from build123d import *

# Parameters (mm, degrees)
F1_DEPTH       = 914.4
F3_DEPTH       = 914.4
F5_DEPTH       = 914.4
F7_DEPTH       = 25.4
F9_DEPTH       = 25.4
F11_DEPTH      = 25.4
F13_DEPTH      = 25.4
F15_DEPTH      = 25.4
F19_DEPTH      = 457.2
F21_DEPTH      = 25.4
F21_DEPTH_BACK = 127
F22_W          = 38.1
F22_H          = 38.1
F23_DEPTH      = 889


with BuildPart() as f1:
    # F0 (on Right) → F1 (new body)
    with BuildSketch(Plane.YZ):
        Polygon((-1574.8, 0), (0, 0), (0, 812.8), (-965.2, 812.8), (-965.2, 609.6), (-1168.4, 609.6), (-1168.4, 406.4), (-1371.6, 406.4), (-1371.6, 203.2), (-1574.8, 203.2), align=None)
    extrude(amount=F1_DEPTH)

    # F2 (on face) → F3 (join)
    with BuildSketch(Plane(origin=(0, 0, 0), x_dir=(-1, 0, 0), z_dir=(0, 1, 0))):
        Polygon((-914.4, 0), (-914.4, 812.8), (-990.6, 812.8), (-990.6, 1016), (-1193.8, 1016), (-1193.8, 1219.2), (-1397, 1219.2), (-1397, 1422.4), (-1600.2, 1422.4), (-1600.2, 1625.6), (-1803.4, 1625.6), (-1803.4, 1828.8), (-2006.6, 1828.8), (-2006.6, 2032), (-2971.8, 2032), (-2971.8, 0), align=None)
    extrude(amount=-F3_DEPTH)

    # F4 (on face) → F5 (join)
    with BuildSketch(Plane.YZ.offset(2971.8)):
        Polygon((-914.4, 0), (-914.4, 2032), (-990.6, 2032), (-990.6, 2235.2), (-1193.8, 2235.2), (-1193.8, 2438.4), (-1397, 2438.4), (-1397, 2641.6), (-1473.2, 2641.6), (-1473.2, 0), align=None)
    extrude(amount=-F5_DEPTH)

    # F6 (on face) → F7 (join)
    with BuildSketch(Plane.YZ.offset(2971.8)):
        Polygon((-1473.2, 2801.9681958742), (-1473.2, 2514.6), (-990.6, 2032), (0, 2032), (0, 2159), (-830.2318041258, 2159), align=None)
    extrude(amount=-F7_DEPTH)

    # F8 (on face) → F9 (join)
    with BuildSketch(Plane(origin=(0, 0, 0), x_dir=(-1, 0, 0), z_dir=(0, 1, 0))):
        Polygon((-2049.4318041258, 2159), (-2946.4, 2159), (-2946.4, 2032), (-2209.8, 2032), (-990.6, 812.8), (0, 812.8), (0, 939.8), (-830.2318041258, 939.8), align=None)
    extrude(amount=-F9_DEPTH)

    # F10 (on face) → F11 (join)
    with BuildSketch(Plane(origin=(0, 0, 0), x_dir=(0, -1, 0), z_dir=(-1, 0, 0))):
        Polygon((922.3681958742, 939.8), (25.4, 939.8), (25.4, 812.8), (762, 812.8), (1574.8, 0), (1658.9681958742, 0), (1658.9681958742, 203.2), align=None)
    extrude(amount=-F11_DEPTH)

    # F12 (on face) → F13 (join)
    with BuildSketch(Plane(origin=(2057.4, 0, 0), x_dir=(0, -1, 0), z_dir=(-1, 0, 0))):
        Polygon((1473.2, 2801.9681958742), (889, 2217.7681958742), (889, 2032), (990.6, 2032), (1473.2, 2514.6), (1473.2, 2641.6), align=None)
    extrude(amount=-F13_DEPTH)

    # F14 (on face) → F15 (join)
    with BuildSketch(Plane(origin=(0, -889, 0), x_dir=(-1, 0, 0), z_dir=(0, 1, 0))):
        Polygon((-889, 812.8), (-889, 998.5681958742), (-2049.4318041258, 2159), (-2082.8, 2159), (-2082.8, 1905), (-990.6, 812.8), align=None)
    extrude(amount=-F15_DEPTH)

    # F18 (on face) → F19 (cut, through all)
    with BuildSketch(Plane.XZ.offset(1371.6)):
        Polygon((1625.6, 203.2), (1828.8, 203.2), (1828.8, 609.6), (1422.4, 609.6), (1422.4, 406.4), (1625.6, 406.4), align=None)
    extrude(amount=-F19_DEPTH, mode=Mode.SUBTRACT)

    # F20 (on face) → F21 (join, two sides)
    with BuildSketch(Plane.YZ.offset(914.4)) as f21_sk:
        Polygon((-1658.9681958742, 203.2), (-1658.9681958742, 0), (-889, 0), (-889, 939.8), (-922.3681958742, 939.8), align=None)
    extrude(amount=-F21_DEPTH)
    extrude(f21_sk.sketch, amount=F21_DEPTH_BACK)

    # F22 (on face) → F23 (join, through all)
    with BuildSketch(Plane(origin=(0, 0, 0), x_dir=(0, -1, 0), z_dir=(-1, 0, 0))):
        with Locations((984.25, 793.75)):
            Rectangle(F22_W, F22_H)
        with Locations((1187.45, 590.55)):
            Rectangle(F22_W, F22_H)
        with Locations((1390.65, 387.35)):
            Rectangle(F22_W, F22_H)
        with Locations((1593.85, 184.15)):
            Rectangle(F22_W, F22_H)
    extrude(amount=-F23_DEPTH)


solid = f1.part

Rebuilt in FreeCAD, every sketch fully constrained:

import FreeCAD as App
import Part
import Sketcher
from FreeCAD import Vector
Q = App.Units.Quantity


def add_polygon(sketch, points):
    """Adds a closed chain of lines whose ends are joined by coincident constraints."""
    first, n = sketch.GeometryCount, len(points)
    for a, b in zip(points, points[1:] + points[:1]):
        sketch.addGeometry(Part.LineSegment(App.Vector(*a, 0), App.Vector(*b, 0)), False)
    for i in range(n):
        sketch.addConstraint(Sketcher.Constraint("Coincident", first + i, 2, first + (i + 1) % n, 1))

doc = App.newDocument("Part")
body = doc.addObject("PartDesign::Body", "Body")

sketch1 = doc.addObject("Sketcher::SketchObject", "Sketch")
body.addObject(sketch1)
sketch1.AttachmentSupport = (doc.YZ_Plane, [""])
sketch1.MapMode = "FlatFace"
add_polygon(sketch1, [(-1575, 0), (0, 0), (0, 813), (-965, 813), (-965, 610), (-1168, 610), (-1168, 406), (-1372, 406), (-1372, 203), (-1575, 203)])
sketch1.addConstraint(Sketcher.Constraint("Horizontal", 0))
sketch1.addConstraint(Sketcher.Constraint("Vertical", 1))
sketch1.addConstraint(Sketcher.Constraint("Horizontal", 2))
sketch1.addConstraint(Sketcher.Constraint("Vertical", 3))
sketch1.addConstraint(Sketcher.Constraint("Horizontal", 4))
sketch1.addConstraint(Sketcher.Constraint("Vertical", 5))
sketch1.addConstraint(Sketcher.Constraint("Horizontal", 6))
sketch1.addConstraint(Sketcher.Constraint("Vertical", 7))
sketch1.addConstraint(Sketcher.Constraint("Horizontal", 8))
sketch1.addConstraint(Sketcher.Constraint("Vertical", 9))
sketch1.addConstraint(Sketcher.Constraint("Coincident", 0, 2, -1, 1))
sketch1.addConstraint(Sketcher.Constraint("Equal", 4, 6))
sketch1.addConstraint(Sketcher.Constraint("Equal", 6, 8))
sketch1.addConstraint(Sketcher.Constraint("Equal", 8, 3))
sketch1.addConstraint(Sketcher.Constraint("Equal", 3, 5))
sketch1.addConstraint(Sketcher.Constraint("Equal", 5, 7))
sketch1.addConstraint(Sketcher.Constraint("Equal", 7, 9))
sketch1.addConstraint(Sketcher.Constraint("DistanceX", 0, 1, 0, 2, Q("62 in")))
sketch1.addConstraint(Sketcher.Constraint("DistanceX", 2, 2, 2, 1, Q("38 in")))
pad1 = doc.addObject("PartDesign::Pad", "Pad")
body.addObject(pad1)
pad1.Profile = sketch1
pad1.Length = Q("36 in")

sketch2 = doc.addObject("Sketcher::SketchObject", "Sketch001")
body.addObject(sketch2)
sketch2.AttachmentSupport = (doc.XZ_Plane, [""])
sketch2.MapMode = "FlatFace"
add_polygon(sketch2, [(914, 0), (914, 813), (991, 813), (991, 1016), (1194, 1016), (1194, 1219), (1397, 1219), (1397, 1422), (1600, 1422), (1600, 1626), (1803, 1626), (1803, 1829), (2007, 1829), (2007, 2032), (2972, 2032), (2972, 0)])
sketch2.addConstraint(Sketcher.Constraint("Vertical", 0))
sketch2.addConstraint(Sketcher.Constraint("Horizontal", 1))
sketch2.addConstraint(Sketcher.Constraint("Vertical", 2))
sketch2.addConstraint(Sketcher.Constraint("Horizontal", 3))
sketch2.addConstraint(Sketcher.Constraint("Vertical", 4))
sketch2.addConstraint(Sketcher.Constraint("Horizontal", 5))
sketch2.addConstraint(Sketcher.Constraint("Vertical", 6))
sketch2.addConstraint(Sketcher.Constraint("Horizontal", 7))
sketch2.addConstraint(Sketcher.Constraint("Vertical", 8))
sketch2.addConstraint(Sketcher.Constraint("Horizontal", 9))
sketch2.addConstraint(Sketcher.Constraint("Vertical", 10))
sketch2.addConstraint(Sketcher.Constraint("Horizontal", 11))
sketch2.addConstraint(Sketcher.Constraint("Vertical", 12))
sketch2.addConstraint(Sketcher.Constraint("Horizontal", 13))
sketch2.addConstraint(Sketcher.Constraint("Vertical", 14))
sketch2.addConstraint(Sketcher.Constraint("Horizontal", 15))
sketch2.addConstraint(Sketcher.Constraint("PointOnObject", 14, 2, -1))
sketch2.addConstraint(Sketcher.Constraint("Equal", 3, 5))
sketch2.addConstraint(Sketcher.Constraint("Equal", 5, 7))
sketch2.addConstraint(Sketcher.Constraint("Equal", 7, 9))
sketch2.addConstraint(Sketcher.Constraint("Equal", 9, 11))
sketch2.addConstraint(Sketcher.Constraint("Equal", 11, 2))
sketch2.addConstraint(Sketcher.Constraint("Equal", 2, 4))
sketch2.addConstraint(Sketcher.Constraint("Equal", 4, 6))
sketch2.addConstraint(Sketcher.Constraint("Equal", 6, 8))
sketch2.addConstraint(Sketcher.Constraint("Equal", 8, 10))
sketch2.addConstraint(Sketcher.Constraint("Equal", 10, 12))
sketch2.addConstraint(Sketcher.Constraint("DistanceX", 1, 1, 1, 2, Q("3 in")))
sketch2.addConstraint(Sketcher.Constraint("DistanceX", 3, 1, 3, 2, Q("8 in")))
sketch2.addConstraint(Sketcher.Constraint("DistanceX", 13, 1, 13, 2, Q("38 in")))
sketch2.addConstraint(Sketcher.Constraint("DistanceY", 0, 1, 0, 2, Q("32 in")))
sketch2.addConstraint(Sketcher.Constraint("DistanceX", -1, 1, 0, 2, Q("36 in")))
pad2 = doc.addObject("PartDesign::Pad", "Pad001")
body.addObject(pad2)
pad2.Profile = sketch2
pad2.Length = Q("36 in")

sketch3 = doc.addObject("Sketcher::SketchObject", "Sketch002")
body.addObject(sketch3)
sketch3.AttachmentSupport = (doc.YZ_Plane, [""])
sketch3.MapMode = "FlatFace"
sketch3.AttachmentOffset = App.Placement(Vector(0, 0, 117 * 25.4), App.Rotation())
add_polygon(sketch3, [(-914, 0), (-914, 2032), (-991, 2032), (-991, 2235), (-1194, 2235), (-1194, 2438), (-1397, 2438), (-1397, 2642), (-1473, 2642), (-1473, 0)])
sketch3.addConstraint(Sketcher.Constraint("Vertical", 0))
sketch3.addConstraint(Sketcher.Constraint("Horizontal", 1))
sketch3.addConstraint(Sketcher.Constraint("Vertical", 2))
sketch3.addConstraint(Sketcher.Constraint("Horizontal", 3))
sketch3.addConstraint(Sketcher.Constraint("Vertical", 4))
sketch3.addConstraint(Sketcher.Constraint("Horizontal", 5))
sketch3.addConstraint(Sketcher.Constraint("Vertical", 6))
sketch3.addConstraint(Sketcher.Constraint("Horizontal", 7))
sketch3.addConstraint(Sketcher.Constraint("Vertical", 8))
sketch3.addConstraint(Sketcher.Constraint("Horizontal", 9))
sketch3.addConstraint(Sketcher.Constraint("PointOnObject", 8, 2, -1))
sketch3.addConstraint(Sketcher.Constraint("Equal", 3, 5))
sketch3.addConstraint(Sketcher.Constraint("Equal", 1, 7))
sketch3.addConstraint(Sketcher.Constraint("Equal", 5, 2))
sketch3.addConstraint(Sketcher.Constraint("Equal", 2, 4))
sketch3.addConstraint(Sketcher.Constraint("Equal", 4, 6))
sketch3.addConstraint(Sketcher.Constraint("DistanceX", 1, 2, 1, 1, Q("3 in")))
sketch3.addConstraint(Sketcher.Constraint("DistanceX", 3, 2, 3, 1, Q("8 in")))
sketch3.addConstraint(Sketcher.Constraint("DistanceY", 0, 1, 0, 2, Q("80 in")))
sketch3.addConstraint(Sketcher.Constraint("DistanceX", 0, 2, -1, 1, Q("36 in")))
pad3 = doc.addObject("PartDesign::Pad", "Pad002")
body.addObject(pad3)
pad3.Profile = sketch3
pad3.Length = Q("36 in")
pad3.Reversed = True

sketch4 = doc.addObject("Sketcher::SketchObject", "Sketch003")
body.addObject(sketch4)
sketch4.AttachmentSupport = (doc.YZ_Plane, [""])
sketch4.MapMode = "FlatFace"
sketch4.AttachmentOffset = App.Placement(Vector(0, 0, 117 * 25.4), App.Rotation())
add_polygon(sketch4, [(-1473, 2802), (-1473, 2515), (-991, 2032), (0, 2032), (0, 2159), (-830, 2159)])
sketch4.addConstraint(Sketcher.Constraint("Vertical", 0))
sketch4.addConstraint(Sketcher.Constraint("Horizontal", 2))
sketch4.addConstraint(Sketcher.Constraint("Vertical", 3))
sketch4.addConstraint(Sketcher.Constraint("Horizontal", 4))
sketch4.addConstraint(Sketcher.Constraint("PointOnObject", 2, 2, -2))
sketch4.addConstraint(Sketcher.Constraint("Parallel", 1, 5))
sketch4.addConstraint(Sketcher.Constraint("DistanceX", 2, 1, 2, 2, Q("39 in")))
sketch4.addConstraint(Sketcher.Constraint("DistanceY", 3, 1, 3, 2, Q("5 in")))
sketch4.addConstraint(Sketcher.Constraint("DistanceX", 0, 2, -1, 1, Q("58 in")))
sketch4.addConstraint(Sketcher.Constraint("DistanceY", -1, 1, 0, 2, Q("99 in")))
sketch4.addConstraint(Sketcher.Constraint("DistanceY", -1, 1, 1, 2, Q("80 in")))
sketch4.addConstraint(Sketcher.Constraint("DistanceX", 4, 2, 4, 1, Q("830.231804 mm")))
pad4 = doc.addObject("PartDesign::Pad", "Pad003")
body.addObject(pad4)
pad4.Profile = sketch4
pad4.Length = Q("1 in")
pad4.Reversed = True

sketch5 = doc.addObject("Sketcher::SketchObject", "Sketch004")
body.addObject(sketch5)
sketch5.AttachmentSupport = (doc.XZ_Plane, [""])
sketch5.MapMode = "FlatFace"
add_polygon(sketch5, [(2049, 2159), (2946, 2159), (2946, 2032), (2210, 2032), (991, 813), (0, 813), (0, 940), (830, 940)])
sketch5.addConstraint(Sketcher.Constraint("Horizontal", 0))
sketch5.addConstraint(Sketcher.Constraint("Vertical", 1))
sketch5.addConstraint(Sketcher.Constraint("Horizontal", 2))
sketch5.addConstraint(Sketcher.Constraint("Horizontal", 4))
sketch5.addConstraint(Sketcher.Constraint("Vertical", 5))
sketch5.addConstraint(Sketcher.Constraint("Horizontal", 6))
sketch5.addConstraint(Sketcher.Constraint("PointOnObject", 4, 2, -2))
sketch5.addConstraint(Sketcher.Constraint("Parallel", 3, 7))
sketch5.addConstraint(Sketcher.Constraint("Equal", 1, 5))
sketch5.addConstraint(Sketcher.Constraint("DistanceX", 2, 2, 2, 1, Q("29 in")))
sketch5.addConstraint(Sketcher.Constraint("DistanceX", 4, 2, 4, 1, Q("39 in")))
sketch5.addConstraint(Sketcher.Constraint("DistanceY", 1, 2, 1, 1, Q("5 in")))
sketch5.addConstraint(Sketcher.Constraint("DistanceX", -1, 1, 0, 2, Q("116 in")))
sketch5.addConstraint(Sketcher.Constraint("DistanceY", -1, 1, 0, 2, Q("85 in")))
sketch5.addConstraint(Sketcher.Constraint("DistanceY", -1, 1, 3, 2, Q("32 in")))
sketch5.addConstraint(Sketcher.Constraint("DistanceX", 0, 1, 0, 2, Q("896.968196 mm")))
pad5 = doc.addObject("PartDesign::Pad", "Pad004")
body.addObject(pad5)
pad5.Profile = sketch5
pad5.Length = Q("1 in")

sketch6 = doc.addObject("Sketcher::SketchObject", "Sketch005")
body.addObject(sketch6)
sketch6.AttachmentSupport = (doc.YZ_Plane, [""])
sketch6.MapMode = "FlatFace"
add_polygon(sketch6, [(-922, 940), (-25, 940), (-25, 813), (-762, 813), (-1575, 0), (-1659, 0), (-1659, 203)])
sketch6.addConstraint(Sketcher.Constraint("Horizontal", 0))
sketch6.addConstraint(Sketcher.Constraint("Vertical", 1))
sketch6.addConstraint(Sketcher.Constraint("Horizontal", 2))
sketch6.addConstraint(Sketcher.Constraint("Horizontal", 4))
sketch6.addConstraint(Sketcher.Constraint("Vertical", 5))
sketch6.addConstraint(Sketcher.Constraint("PointOnObject", 3, 2, -1))
sketch6.addConstraint(Sketcher.Constraint("Parallel", 3, 6))
sketch6.addConstraint(Sketcher.Constraint("DistanceX", 2, 2, 2, 1, Q("29 in")))
sketch6.addConstraint(Sketcher.Constraint("DistanceY", 1, 2, 1, 1, Q("5 in")))
sketch6.addConstraint(Sketcher.Constraint("DistanceY", 5, 1, 5, 2, Q("8 in")))
sketch6.addConstraint(Sketcher.Constraint("DistanceX", 0, 2, -1, 1, Q("1 in")))
sketch6.addConstraint(Sketcher.Constraint("DistanceY", -1, 1, 0, 2, Q("37 in")))
sketch6.addConstraint(Sketcher.Constraint("DistanceX", 3, 2, -1, 1, Q("62 in")))
sketch6.addConstraint(Sketcher.Constraint("DistanceX", 0, 1, 0, 2, Q("896.968196 mm")))
pad6 = doc.addObject("PartDesign::Pad", "Pad005")
body.addObject(pad6)
pad6.Profile = sketch6
pad6.Length = Q("1 in")

sketch7 = doc.addObject("Sketcher::SketchObject", "Sketch006")
body.addObject(sketch7)
sketch7.AttachmentSupport = (doc.YZ_Plane, [""])
sketch7.MapMode = "FlatFace"
sketch7.AttachmentOffset = App.Placement(Vector(0, 0, 81 * 25.4), App.Rotation())
add_polygon(sketch7, [(-1473, 2802), (-889, 2218), (-889, 2032), (-991, 2032), (-1473, 2515)])
sketch7.addConstraint(Sketcher.Constraint("Vertical", 1))
sketch7.addConstraint(Sketcher.Constraint("Horizontal", 2))
sketch7.addConstraint(Sketcher.Constraint("Vertical", 4))
sketch7.addConstraint(Sketcher.Constraint("Parallel", 0, 3))
sketch7.addConstraint(Sketcher.Constraint("DistanceX", 2, 2, 2, 1, Q("4 in")))
sketch7.addConstraint(Sketcher.Constraint("DistanceX", 0, 2, -1, 1, Q("35 in")))
sketch7.addConstraint(Sketcher.Constraint("DistanceY", -1, 1, 1, 2, Q("80 in")))
sketch7.addConstraint(Sketcher.Constraint("DistanceX", 3, 2, -1, 1, Q("58 in")))
sketch7.addConstraint(Sketcher.Constraint("DistanceY", -1, 1, 3, 2, Q("99 in")))
sketch7.addConstraint(Sketcher.Constraint("DistanceY", 1, 2, 1, 1, Q("185.768196 mm")))
pad7 = doc.addObject("PartDesign::Pad", "Pad006")
body.addObject(pad7)
pad7.Profile = sketch7
pad7.Length = Q("1 in")

sketch8 = doc.addObject("Sketcher::SketchObject", "Sketch007")
body.addObject(sketch8)
sketch8.AttachmentSupport = (doc.XZ_Plane, [""])
sketch8.MapMode = "FlatFace"
sketch8.AttachmentOffset = App.Placement(Vector(0, 0, 35 * 25.4), App.Rotation())
add_polygon(sketch8, [(889, 813), (889, 999), (2049, 2159), (2083, 2159), (2083, 1905), (991, 813)])
sketch8.addConstraint(Sketcher.Constraint("Vertical", 0))
sketch8.addConstraint(Sketcher.Constraint("Horizontal", 2))
sketch8.addConstraint(Sketcher.Constraint("Vertical", 3))
sketch8.addConstraint(Sketcher.Constraint("Horizontal", 5))
sketch8.addConstraint(Sketcher.Constraint("Parallel", 1, 4))
sketch8.addConstraint(Sketcher.Constraint("DistanceX", 5, 2, 5, 1, Q("4 in")))
sketch8.addConstraint(Sketcher.Constraint("DistanceY", 3, 2, 3, 1, Q("10 in")))
sketch8.addConstraint(Sketcher.Constraint("DistanceX", -1, 1, 0, 2, Q("35 in")))
sketch8.addConstraint(Sketcher.Constraint("DistanceY", -1, 1, 1, 2, Q("85 in")))
sketch8.addConstraint(Sketcher.Constraint("DistanceX", -1, 1, 2, 2, Q("82 in")))
sketch8.addConstraint(Sketcher.Constraint("DistanceY", -1, 1, 4, 2, Q("32 in")))
sketch8.addConstraint(Sketcher.Constraint("DistanceX", 2, 1, 2, 2, Q("33.368196 mm")))
pad8 = doc.addObject("PartDesign::Pad", "Pad007")
body.addObject(pad8)
pad8.Profile = sketch8
pad8.Length = Q("1 in")

sketch9 = doc.addObject("Sketcher::SketchObject", "Sketch008")
body.addObject(sketch9)
sketch9.AttachmentSupport = (doc.XZ_Plane, [""])
sketch9.MapMode = "FlatFace"
sketch9.AttachmentOffset = App.Placement(Vector(0, 0, 54 * 25.4), App.Rotation())
add_polygon(sketch9, [(1626, 203), (1829, 203), (1829, 610), (1422, 610), (1422, 406), (1626, 406)])
sketch9.addConstraint(Sketcher.Constraint("Horizontal", 0))
sketch9.addConstraint(Sketcher.Constraint("Vertical", 1))
sketch9.addConstraint(Sketcher.Constraint("Horizontal", 2))
sketch9.addConstraint(Sketcher.Constraint("Vertical", 3))
sketch9.addConstraint(Sketcher.Constraint("Horizontal", 4))
sketch9.addConstraint(Sketcher.Constraint("Vertical", 5))
sketch9.addConstraint(Sketcher.Constraint("Equal", 0, 4))
sketch9.addConstraint(Sketcher.Constraint("Equal", 2, 1))
sketch9.addConstraint(Sketcher.Constraint("Equal", 4, 3))
sketch9.addConstraint(Sketcher.Constraint("DistanceX", 0, 1, 0, 2, Q("8 in")))
sketch9.addConstraint(Sketcher.Constraint("DistanceX", -1, 1, 0, 2, Q("72 in")))
sketch9.addConstraint(Sketcher.Constraint("DistanceY", -1, 1, 0, 2, Q("8 in")))
pocket1 = doc.addObject("PartDesign::Pocket", "Pocket")
body.addObject(pocket1)
pocket1.Profile = sketch9
pocket1.Length = Q("18 in")

sketch10 = doc.addObject("Sketcher::SketchObject", "Sketch009")
body.addObject(sketch10)
sketch10.AttachmentSupport = (doc.YZ_Plane, [""])
sketch10.MapMode = "FlatFace"
sketch10.AttachmentOffset = App.Placement(Vector(0, 0, 36 * 25.4), App.Rotation())
add_polygon(sketch10, [(-1659, 203), (-1659, 0), (-889, 0), (-889, 940), (-922, 940)])
sketch10.addConstraint(Sketcher.Constraint("Vertical", 0))
sketch10.addConstraint(Sketcher.Constraint("Horizontal", 1))
sketch10.addConstraint(Sketcher.Constraint("Vertical", 2))
sketch10.addConstraint(Sketcher.Constraint("Horizontal", 3))
sketch10.addConstraint(Sketcher.Constraint("PointOnObject", 0, 2, -1))
sketch10.addConstraint(Sketcher.Constraint("DistanceY", 0, 2, 0, 1, Q("8 in")))
sketch10.addConstraint(Sketcher.Constraint("DistanceY", 2, 1, 2, 2, Q("37 in")))
sketch10.addConstraint(Sketcher.Constraint("DistanceX", 1, 2, -1, 1, Q("35 in")))
sketch10.addConstraint(Sketcher.Constraint("Angle", 4, Q("-135 deg")))
sketch10.addConstraint(Sketcher.Constraint("DistanceX", 1, 1, 1, 2, Q("769.968196 mm")))
pad9 = doc.addObject("PartDesign::Pad", "Pad008")
body.addObject(pad9)
pad9.Profile = sketch10
pad9.Type = "TwoLengths"
pad9.Length = Q("1 in")
pad9.Length2 = Q("5 in")
pad9.Reversed = True

sketch11 = doc.addObject("Sketcher::SketchObject", "Sketch010")
body.addObject(sketch11)
sketch11.AttachmentSupport = (doc.YZ_Plane, [""])
sketch11.MapMode = "FlatFace"
add_polygon(sketch11, [(-965, 813), (-965, 775), (-1003, 775), (-1003, 813)])
add_polygon(sketch11, [(-1168, 610), (-1168, 572), (-1206, 572), (-1206, 610)])
add_polygon(sketch11, [(-1372, 406), (-1372, 368), (-1410, 368), (-1410, 406)])
add_polygon(sketch11, [(-1575, 203), (-1575, 165), (-1613, 165), (-1613, 203)])
sketch11.addConstraint(Sketcher.Constraint("Vertical", 0))
sketch11.addConstraint(Sketcher.Constraint("Horizontal", 1))
sketch11.addConstraint(Sketcher.Constraint("Vertical", 2))
sketch11.addConstraint(Sketcher.Constraint("Horizontal", 3))
sketch11.addConstraint(Sketcher.Constraint("Vertical", 4))
sketch11.addConstraint(Sketcher.Constraint("Horizontal", 5))
sketch11.addConstraint(Sketcher.Constraint("Vertical", 6))
sketch11.addConstraint(Sketcher.Constraint("Horizontal", 7))
sketch11.addConstraint(Sketcher.Constraint("Vertical", 8))
sketch11.addConstraint(Sketcher.Constraint("Horizontal", 9))
sketch11.addConstraint(Sketcher.Constraint("Vertical", 10))
sketch11.addConstraint(Sketcher.Constraint("Horizontal", 11))
sketch11.addConstraint(Sketcher.Constraint("Vertical", 12))
sketch11.addConstraint(Sketcher.Constraint("Horizontal", 13))
sketch11.addConstraint(Sketcher.Constraint("Vertical", 14))
sketch11.addConstraint(Sketcher.Constraint("Horizontal", 15))
sketch11.addConstraint(Sketcher.Constraint("Equal", 3, 5))
sketch11.addConstraint(Sketcher.Constraint("Equal", 7, 9))
sketch11.addConstraint(Sketcher.Constraint("Equal", 11, 13))
sketch11.addConstraint(Sketcher.Constraint("Equal", 15, 0))
sketch11.addConstraint(Sketcher.Constraint("Equal", 2, 4))
sketch11.addConstraint(Sketcher.Constraint("Equal", 6, 8))
sketch11.addConstraint(Sketcher.Constraint("Equal", 10, 12))
sketch11.addConstraint(Sketcher.Constraint("DistanceX", 1, 2, 1, 1, Q("1.5 in")))
sketch11.addConstraint(Sketcher.Constraint("DistanceX", 0, 2, -1, 1, Q("38 in")))
sketch11.addConstraint(Sketcher.Constraint("DistanceY", -1, 1, 2, 2, Q("32 in")))
sketch11.addConstraint(Sketcher.Constraint("DistanceX", 4, 2, -1, 1, Q("46 in")))
sketch11.addConstraint(Sketcher.Constraint("DistanceY", -1, 1, 6, 2, Q("24 in")))
sketch11.addConstraint(Sketcher.Constraint("DistanceX", 8, 2, -1, 1, Q("54 in")))
sketch11.addConstraint(Sketcher.Constraint("DistanceY", -1, 1, 10, 2, Q("16 in")))
sketch11.addConstraint(Sketcher.Constraint("DistanceX", 12, 2, -1, 1, Q("62 in")))
sketch11.addConstraint(Sketcher.Constraint("DistanceY", -1, 1, 14, 2, Q("8 in")))
pad10 = doc.addObject("PartDesign::Pad", "Pad009")
body.addObject(pad10)
pad10.Profile = sketch11
pad10.Length = Q("35 in")

doc.recompute()
